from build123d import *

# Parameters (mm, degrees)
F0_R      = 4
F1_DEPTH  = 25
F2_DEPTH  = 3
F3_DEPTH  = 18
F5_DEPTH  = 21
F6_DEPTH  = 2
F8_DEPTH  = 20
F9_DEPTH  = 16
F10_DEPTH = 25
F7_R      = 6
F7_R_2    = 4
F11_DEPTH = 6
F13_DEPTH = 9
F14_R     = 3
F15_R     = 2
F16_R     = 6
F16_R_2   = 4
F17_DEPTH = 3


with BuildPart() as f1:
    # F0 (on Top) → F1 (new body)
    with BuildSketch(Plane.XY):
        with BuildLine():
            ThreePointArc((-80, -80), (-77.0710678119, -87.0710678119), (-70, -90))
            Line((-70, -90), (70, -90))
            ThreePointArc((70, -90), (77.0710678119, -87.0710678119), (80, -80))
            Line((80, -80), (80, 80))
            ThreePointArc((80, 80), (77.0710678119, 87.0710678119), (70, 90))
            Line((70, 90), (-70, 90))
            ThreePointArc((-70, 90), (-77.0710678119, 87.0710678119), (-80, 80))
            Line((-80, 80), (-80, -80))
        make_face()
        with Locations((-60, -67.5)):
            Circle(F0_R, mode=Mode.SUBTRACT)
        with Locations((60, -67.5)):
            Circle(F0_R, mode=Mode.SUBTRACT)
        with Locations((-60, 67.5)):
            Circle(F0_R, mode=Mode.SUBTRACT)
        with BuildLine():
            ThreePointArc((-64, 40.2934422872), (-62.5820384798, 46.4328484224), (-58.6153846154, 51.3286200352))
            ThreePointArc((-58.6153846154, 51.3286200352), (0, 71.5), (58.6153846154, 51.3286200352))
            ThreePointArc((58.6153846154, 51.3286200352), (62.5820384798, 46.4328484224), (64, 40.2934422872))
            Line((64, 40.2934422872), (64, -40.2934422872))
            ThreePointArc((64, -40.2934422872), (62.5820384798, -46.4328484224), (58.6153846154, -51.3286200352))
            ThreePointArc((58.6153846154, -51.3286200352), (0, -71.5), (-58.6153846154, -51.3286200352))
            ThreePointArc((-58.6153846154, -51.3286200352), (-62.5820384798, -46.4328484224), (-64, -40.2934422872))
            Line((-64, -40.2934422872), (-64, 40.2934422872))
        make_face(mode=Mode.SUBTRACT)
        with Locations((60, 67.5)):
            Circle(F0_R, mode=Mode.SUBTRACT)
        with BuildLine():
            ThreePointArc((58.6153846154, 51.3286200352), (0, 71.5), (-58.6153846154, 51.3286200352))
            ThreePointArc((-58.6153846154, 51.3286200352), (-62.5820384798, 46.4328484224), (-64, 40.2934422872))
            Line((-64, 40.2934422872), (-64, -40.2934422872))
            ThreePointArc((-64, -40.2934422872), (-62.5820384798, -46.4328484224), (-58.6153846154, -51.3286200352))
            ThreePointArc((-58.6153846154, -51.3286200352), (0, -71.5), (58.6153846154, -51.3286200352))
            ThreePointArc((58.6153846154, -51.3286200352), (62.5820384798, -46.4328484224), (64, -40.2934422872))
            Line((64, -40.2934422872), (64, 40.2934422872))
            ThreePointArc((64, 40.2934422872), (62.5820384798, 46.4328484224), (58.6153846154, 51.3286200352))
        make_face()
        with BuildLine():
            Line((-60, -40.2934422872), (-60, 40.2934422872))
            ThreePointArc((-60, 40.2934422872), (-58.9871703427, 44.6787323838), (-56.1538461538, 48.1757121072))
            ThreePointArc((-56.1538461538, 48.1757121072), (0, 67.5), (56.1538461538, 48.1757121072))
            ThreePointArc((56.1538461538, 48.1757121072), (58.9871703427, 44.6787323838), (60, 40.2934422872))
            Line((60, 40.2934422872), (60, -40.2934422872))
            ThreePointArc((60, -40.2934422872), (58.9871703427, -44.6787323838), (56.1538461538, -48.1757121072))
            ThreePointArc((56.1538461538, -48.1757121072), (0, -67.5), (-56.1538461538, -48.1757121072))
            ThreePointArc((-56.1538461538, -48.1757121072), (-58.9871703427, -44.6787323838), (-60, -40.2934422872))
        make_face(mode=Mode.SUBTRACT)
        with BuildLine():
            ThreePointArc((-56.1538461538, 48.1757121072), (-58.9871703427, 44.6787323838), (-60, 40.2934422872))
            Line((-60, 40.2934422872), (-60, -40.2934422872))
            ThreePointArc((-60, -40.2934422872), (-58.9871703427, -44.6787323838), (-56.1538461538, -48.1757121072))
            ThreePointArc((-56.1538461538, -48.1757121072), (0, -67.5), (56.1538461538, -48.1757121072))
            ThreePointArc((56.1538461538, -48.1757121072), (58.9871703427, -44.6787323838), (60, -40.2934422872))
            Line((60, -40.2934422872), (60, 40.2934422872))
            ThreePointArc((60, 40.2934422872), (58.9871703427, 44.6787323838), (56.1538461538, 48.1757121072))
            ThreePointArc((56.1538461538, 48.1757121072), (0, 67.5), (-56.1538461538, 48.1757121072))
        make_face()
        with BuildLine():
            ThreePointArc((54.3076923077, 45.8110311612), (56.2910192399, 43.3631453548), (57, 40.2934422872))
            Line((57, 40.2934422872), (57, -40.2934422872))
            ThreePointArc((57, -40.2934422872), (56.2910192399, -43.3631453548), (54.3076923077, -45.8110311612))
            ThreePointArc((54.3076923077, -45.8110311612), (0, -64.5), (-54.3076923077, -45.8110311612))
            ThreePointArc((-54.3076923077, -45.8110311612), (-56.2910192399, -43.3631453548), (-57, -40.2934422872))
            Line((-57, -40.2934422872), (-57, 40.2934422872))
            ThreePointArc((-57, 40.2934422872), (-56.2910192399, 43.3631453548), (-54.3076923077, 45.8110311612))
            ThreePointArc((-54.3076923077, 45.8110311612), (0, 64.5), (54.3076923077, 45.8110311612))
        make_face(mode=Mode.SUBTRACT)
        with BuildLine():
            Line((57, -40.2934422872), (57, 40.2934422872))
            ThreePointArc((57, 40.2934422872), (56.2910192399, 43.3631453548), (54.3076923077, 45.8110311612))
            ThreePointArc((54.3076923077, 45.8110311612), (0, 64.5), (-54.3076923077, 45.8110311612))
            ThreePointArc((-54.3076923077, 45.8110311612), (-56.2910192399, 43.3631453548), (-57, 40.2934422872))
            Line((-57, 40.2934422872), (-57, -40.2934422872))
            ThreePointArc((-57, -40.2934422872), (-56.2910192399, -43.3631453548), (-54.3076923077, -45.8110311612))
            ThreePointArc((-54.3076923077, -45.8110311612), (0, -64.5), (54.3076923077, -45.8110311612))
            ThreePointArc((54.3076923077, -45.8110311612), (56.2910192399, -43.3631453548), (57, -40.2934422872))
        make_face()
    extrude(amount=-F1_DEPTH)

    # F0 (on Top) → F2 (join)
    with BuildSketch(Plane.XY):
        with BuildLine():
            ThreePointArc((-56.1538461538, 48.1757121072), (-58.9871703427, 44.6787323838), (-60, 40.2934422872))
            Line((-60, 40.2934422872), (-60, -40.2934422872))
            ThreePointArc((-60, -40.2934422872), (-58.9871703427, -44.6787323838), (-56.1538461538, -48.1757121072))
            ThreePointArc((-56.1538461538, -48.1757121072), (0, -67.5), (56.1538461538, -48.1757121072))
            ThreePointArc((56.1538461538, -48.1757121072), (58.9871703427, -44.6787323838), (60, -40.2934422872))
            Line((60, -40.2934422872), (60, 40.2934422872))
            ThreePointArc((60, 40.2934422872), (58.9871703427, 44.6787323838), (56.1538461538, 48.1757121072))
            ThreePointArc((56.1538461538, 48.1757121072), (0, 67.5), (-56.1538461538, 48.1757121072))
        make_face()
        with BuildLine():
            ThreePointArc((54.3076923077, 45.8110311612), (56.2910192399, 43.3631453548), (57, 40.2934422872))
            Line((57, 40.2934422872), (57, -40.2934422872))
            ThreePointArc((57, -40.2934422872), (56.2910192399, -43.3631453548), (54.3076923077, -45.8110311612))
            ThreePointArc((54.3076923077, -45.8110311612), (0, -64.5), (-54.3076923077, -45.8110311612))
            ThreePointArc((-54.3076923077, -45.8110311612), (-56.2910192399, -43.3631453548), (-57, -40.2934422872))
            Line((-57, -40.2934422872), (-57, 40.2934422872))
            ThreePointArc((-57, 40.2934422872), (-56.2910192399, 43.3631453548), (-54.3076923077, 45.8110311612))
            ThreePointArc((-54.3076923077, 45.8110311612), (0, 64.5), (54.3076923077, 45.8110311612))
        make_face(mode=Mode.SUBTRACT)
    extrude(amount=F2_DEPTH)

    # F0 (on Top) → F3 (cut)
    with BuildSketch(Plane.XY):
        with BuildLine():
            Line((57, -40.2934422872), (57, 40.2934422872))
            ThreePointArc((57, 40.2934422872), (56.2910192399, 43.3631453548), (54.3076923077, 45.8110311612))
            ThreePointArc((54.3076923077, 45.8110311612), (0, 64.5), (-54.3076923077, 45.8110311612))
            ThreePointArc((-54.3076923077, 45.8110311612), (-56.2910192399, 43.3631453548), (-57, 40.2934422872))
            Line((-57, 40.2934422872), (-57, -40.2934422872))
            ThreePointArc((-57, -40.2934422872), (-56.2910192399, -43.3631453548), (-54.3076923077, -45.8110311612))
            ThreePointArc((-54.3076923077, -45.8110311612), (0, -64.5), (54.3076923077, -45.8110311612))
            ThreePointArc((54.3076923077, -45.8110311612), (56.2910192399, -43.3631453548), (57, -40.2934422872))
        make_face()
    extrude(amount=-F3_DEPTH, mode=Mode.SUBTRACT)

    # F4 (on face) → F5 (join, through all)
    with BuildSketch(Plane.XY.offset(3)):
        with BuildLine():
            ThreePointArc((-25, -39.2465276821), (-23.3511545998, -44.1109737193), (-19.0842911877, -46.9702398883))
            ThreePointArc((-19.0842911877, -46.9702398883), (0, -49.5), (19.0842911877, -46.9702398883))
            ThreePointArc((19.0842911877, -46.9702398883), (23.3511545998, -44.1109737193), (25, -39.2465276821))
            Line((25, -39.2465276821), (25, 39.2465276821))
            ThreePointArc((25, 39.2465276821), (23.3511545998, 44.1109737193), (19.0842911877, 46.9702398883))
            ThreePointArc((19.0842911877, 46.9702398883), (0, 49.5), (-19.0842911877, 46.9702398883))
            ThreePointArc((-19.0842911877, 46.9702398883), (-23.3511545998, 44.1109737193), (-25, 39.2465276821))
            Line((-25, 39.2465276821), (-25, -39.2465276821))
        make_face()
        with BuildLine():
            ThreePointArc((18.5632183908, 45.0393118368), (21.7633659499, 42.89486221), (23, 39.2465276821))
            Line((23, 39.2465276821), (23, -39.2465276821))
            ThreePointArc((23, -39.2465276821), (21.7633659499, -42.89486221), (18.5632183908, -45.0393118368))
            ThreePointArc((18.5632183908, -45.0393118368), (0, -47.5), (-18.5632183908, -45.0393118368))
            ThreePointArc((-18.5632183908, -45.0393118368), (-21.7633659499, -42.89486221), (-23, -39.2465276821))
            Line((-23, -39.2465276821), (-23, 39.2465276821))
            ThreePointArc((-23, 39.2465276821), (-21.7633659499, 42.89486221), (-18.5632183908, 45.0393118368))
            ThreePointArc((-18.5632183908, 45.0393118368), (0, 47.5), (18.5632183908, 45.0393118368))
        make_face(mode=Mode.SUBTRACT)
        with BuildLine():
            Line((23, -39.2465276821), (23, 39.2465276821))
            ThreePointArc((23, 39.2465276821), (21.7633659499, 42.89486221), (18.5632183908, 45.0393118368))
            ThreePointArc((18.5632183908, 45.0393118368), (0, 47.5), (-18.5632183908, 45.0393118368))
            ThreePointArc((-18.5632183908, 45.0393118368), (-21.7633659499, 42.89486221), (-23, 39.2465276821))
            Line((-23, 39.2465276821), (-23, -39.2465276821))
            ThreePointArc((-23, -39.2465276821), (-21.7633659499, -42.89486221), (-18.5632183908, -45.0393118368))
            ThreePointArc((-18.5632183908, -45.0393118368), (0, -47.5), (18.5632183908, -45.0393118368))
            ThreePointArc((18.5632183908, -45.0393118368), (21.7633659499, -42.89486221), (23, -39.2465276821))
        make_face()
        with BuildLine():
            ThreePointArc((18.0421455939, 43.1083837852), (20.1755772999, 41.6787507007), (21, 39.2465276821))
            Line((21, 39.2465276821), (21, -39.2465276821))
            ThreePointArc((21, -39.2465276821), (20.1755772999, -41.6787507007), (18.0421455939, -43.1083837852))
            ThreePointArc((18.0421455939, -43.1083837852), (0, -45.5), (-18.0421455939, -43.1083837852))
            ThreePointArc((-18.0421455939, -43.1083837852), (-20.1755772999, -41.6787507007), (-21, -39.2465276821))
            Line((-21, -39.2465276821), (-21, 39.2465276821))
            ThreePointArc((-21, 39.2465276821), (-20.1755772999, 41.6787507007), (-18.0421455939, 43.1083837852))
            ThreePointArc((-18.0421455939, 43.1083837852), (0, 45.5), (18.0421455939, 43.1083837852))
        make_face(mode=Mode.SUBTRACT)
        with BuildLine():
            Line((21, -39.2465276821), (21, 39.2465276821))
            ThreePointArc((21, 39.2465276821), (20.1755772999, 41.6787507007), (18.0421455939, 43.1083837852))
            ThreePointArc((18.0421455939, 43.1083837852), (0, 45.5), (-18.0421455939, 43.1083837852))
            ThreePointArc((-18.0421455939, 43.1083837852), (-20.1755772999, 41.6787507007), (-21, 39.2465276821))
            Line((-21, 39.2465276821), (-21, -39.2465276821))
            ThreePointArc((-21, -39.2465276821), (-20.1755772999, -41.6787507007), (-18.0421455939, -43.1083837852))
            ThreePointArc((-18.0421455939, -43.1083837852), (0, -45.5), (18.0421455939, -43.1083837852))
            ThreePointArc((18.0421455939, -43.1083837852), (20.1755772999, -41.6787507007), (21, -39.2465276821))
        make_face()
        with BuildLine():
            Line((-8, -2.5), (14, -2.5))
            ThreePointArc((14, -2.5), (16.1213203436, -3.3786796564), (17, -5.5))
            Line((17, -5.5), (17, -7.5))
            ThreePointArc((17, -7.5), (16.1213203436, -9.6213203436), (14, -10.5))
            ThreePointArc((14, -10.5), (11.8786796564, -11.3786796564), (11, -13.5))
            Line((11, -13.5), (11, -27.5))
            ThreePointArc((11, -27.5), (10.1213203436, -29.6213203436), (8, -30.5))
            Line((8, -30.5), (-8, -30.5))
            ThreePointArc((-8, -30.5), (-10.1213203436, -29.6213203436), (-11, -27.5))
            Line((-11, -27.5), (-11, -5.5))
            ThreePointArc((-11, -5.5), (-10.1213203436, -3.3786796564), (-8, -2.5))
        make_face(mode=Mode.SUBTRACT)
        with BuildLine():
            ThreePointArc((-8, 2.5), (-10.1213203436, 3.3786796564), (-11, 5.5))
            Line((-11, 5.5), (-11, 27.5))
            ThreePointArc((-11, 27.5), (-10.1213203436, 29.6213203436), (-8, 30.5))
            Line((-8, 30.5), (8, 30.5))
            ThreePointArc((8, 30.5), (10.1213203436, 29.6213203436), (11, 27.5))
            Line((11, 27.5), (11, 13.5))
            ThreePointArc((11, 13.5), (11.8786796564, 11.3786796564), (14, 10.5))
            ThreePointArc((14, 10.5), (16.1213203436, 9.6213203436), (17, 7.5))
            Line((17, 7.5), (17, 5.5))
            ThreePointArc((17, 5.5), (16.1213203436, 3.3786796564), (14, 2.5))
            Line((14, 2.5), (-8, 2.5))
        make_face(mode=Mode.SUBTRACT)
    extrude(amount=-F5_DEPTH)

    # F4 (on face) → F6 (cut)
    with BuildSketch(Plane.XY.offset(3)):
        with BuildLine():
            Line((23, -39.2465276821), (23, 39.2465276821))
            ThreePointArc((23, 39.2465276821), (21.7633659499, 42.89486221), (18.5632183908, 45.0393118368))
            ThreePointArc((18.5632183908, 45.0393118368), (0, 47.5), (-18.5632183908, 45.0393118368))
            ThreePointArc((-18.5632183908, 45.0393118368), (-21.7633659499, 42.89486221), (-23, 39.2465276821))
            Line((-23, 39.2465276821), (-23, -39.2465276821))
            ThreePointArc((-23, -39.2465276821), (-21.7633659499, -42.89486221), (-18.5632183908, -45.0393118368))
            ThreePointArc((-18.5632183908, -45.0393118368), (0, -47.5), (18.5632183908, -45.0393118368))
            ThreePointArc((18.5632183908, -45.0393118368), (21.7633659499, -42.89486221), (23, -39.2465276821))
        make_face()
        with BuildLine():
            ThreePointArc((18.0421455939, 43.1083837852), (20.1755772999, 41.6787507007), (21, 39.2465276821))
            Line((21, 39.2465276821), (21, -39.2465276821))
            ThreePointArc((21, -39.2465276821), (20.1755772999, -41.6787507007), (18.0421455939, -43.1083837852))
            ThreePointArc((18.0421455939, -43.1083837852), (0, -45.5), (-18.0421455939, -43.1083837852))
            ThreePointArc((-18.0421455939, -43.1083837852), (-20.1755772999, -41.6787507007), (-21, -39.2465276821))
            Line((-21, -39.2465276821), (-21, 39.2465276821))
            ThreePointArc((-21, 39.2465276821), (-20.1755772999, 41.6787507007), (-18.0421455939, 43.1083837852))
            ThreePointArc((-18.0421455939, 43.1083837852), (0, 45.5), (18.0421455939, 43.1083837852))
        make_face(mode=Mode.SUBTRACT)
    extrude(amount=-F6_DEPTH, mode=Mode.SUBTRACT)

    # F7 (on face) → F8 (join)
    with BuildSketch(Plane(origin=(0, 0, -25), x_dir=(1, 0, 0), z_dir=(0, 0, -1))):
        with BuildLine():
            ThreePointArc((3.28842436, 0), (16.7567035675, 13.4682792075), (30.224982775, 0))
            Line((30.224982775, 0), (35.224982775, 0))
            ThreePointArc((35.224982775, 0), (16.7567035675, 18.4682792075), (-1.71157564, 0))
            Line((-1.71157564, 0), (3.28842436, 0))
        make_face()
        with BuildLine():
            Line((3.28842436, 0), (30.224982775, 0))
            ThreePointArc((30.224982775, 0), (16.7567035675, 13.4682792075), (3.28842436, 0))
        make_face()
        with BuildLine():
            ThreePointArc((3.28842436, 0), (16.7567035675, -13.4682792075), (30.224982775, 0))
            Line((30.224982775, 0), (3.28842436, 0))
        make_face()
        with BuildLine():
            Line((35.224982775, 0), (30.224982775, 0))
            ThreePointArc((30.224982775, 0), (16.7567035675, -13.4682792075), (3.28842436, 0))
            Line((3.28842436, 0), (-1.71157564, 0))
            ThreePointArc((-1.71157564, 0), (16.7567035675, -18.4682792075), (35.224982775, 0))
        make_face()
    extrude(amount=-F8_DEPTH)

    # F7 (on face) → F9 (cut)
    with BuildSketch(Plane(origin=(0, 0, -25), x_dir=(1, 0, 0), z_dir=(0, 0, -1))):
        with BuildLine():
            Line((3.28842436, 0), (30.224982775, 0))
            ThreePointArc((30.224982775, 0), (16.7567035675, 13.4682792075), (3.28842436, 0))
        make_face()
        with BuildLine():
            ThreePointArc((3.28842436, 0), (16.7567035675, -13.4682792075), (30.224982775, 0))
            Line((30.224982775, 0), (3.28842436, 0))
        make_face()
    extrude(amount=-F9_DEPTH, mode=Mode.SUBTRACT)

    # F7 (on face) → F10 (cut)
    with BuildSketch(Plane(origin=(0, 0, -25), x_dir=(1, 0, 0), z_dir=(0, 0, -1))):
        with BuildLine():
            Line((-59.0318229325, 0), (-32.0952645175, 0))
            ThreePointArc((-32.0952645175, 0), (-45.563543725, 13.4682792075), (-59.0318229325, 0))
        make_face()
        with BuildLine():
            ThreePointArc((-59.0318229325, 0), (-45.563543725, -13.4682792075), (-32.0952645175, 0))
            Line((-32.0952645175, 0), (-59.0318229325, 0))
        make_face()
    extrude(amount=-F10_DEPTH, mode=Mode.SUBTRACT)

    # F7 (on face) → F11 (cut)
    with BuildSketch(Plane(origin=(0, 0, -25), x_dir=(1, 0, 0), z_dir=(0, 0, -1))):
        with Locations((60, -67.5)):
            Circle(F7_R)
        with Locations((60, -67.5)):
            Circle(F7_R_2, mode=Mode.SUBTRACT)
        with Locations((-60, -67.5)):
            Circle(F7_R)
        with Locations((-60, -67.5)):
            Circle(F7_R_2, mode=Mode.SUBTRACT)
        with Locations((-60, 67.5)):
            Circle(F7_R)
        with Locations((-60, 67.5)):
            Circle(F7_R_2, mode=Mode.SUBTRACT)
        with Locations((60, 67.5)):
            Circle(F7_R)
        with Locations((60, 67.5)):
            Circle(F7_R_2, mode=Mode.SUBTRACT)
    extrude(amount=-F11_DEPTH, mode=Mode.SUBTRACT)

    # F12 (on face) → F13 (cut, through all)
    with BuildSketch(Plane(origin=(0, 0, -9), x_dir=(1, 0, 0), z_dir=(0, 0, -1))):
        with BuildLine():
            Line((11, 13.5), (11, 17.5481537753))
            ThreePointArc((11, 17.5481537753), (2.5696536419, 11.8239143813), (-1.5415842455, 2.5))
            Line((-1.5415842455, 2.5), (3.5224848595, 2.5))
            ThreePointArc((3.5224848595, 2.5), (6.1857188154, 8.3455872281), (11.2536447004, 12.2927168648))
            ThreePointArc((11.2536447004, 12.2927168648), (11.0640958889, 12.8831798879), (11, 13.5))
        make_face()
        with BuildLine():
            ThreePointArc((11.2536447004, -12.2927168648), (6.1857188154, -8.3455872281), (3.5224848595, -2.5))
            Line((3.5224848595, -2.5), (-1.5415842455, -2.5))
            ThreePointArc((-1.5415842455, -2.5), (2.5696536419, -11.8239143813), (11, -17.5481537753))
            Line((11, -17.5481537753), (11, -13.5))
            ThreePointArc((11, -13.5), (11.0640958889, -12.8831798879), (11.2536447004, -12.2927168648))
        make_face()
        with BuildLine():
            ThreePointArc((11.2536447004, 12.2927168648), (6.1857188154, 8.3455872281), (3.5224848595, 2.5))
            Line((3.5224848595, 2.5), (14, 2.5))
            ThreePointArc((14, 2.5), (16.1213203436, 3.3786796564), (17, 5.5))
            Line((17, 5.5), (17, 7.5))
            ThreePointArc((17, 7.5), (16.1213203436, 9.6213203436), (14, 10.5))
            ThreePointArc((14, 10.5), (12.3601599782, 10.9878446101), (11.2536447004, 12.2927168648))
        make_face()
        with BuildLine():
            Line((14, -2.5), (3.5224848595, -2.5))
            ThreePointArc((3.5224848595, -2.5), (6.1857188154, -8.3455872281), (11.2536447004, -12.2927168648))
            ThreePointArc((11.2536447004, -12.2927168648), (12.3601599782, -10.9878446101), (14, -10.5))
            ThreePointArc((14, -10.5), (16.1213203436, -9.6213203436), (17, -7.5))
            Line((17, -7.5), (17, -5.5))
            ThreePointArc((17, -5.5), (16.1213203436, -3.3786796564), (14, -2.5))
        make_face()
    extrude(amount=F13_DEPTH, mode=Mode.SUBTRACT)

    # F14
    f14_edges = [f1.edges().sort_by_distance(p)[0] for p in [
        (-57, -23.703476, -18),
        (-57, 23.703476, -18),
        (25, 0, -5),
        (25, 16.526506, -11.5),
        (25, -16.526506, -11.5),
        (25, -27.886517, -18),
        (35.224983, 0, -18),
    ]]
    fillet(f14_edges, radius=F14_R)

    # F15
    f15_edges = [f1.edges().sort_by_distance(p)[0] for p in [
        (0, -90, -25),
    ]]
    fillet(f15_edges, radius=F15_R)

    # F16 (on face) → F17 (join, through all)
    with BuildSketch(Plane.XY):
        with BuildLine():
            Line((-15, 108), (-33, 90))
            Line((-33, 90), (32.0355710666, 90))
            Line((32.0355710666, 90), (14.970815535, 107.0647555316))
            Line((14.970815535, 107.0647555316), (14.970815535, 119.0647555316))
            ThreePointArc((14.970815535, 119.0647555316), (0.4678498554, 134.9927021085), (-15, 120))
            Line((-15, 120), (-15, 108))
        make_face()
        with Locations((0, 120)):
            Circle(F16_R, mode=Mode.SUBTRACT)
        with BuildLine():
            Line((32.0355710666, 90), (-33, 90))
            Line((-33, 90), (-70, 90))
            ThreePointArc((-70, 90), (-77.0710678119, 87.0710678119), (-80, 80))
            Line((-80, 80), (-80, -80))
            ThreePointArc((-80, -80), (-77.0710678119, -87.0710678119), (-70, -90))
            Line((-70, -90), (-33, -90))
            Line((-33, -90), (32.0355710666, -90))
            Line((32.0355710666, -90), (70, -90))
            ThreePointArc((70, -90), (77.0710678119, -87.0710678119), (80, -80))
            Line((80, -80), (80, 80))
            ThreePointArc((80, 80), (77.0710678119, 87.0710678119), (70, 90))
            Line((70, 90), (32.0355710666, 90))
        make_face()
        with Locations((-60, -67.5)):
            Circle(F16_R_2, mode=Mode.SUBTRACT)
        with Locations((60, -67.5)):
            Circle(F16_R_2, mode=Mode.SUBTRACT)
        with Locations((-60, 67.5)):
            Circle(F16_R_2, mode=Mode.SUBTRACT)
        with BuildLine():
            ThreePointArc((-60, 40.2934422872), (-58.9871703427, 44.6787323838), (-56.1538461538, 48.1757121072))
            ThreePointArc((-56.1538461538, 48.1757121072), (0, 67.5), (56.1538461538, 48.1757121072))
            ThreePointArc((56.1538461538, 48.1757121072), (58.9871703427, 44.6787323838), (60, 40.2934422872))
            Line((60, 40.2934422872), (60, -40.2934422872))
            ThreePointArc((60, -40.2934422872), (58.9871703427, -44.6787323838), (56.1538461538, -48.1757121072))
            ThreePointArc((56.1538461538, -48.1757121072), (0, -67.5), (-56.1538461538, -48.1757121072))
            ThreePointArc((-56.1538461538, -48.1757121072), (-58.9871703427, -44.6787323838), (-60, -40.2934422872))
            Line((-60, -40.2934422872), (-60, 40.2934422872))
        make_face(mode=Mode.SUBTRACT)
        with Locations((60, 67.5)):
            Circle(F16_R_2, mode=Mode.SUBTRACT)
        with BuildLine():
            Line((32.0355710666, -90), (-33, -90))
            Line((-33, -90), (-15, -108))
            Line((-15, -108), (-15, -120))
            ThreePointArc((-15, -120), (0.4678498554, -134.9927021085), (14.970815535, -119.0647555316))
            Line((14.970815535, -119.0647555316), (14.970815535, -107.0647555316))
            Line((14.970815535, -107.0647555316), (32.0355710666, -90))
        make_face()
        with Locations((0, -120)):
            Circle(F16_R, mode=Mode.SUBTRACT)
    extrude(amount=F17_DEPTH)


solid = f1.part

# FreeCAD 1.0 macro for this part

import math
import FreeCAD as App
import Part
import Sketcher

V = App.Vector


def edges_at(feature, points):
    """Names of the edges that pass closest to the given points."""
    edges = feature.Shape.Edges
    near = lambda p: min(range(len(edges)), key=lambda i: edges[i].distToShape(Part.Vertex(*p))[0])
    return sorted({f"Edge{near(p) + 1}" for p in points})

doc = App.newDocument("Part")
body = doc.addObject("PartDesign::Body", "Body")

sketch1 = body.newObject("Sketcher::SketchObject", "Sketch")
sketch1.AttachmentSupport = (doc.getObject("XY_Plane"), [""])
sketch1.MapMode = "FlatFace"
sketch1.addGeometry([
    Part.ArcOfCircle(Part.Circle(V(-70, -80, 0), V(0, 0, 1), 10), math.radians(180), math.radians(270)),
    Part.LineSegment(V(-70, -90, 0), V(70, -90, 0)),
    Part.ArcOfCircle(Part.Circle(V(70, -80, 0), V(0, 0, 1), 10), math.radians(-90), math.radians(0)),
    Part.LineSegment(V(80, -80, 0), V(80, 80, 0)),
    Part.ArcOfCircle(Part.Circle(V(70, 80, 0), V(0, 0, 1), 10), math.radians(0), math.radians(90)),
    Part.LineSegment(V(70, 90, 0), V(-70, 90, 0)),
    Part.ArcOfCircle(Part.Circle(V(-70, 80, 0), V(0, 0, 1), 10), math.radians(90), math.radians(180)),
    Part.LineSegment(V(-80, 80, 0), V(-80, -80, 0)),
    Part.Circle(V(-60, -67.5, 0), V(0, 0, 1), 4),
    Part.Circle(V(60, -67.5, 0), V(0, 0, 1), 4),
    Part.Circle(V(-60, 67.5, 0), V(0, 0, 1), 4),
    Part.Circle(V(60, 67.5, 0), V(0, 0, 1), 4),
], False)
sketch1.addConstraint([
    Sketcher.Constraint("Tangent", 0, 2, 1, 1),
    Sketcher.Constraint("Tangent", 1, 2, 2, 1),
    Sketcher.Constraint("Tangent", 2, 2, 3, 1),
    Sketcher.Constraint("Tangent", 3, 2, 4, 1),
    Sketcher.Constraint("Tangent", 4, 2, 5, 1),
    Sketcher.Constraint("Tangent", 5, 2, 6, 1),
    Sketcher.Constraint("Tangent", 6, 2, 7, 1),
    Sketcher.Constraint("Tangent", 7, 2, 0, 1),
    Sketcher.Constraint("Horizontal", 1),
    Sketcher.Constraint("Vertical", 3),
    Sketcher.Constraint("Horizontal", 5),
    Sketcher.Constraint("Vertical", 7),
    Sketcher.Constraint("Equal", 0, 2),
    Sketcher.Constraint("Equal", 2, 4),
    Sketcher.Constraint("Equal", 4, 6),
    Sketcher.Constraint("Equal", 8, 9),
    Sketcher.Constraint("Equal", 9, 10),
    Sketcher.Constraint("Equal", 10, 11),
    Sketcher.Constraint("Symmetric", 0, 3, 4, 3, -1, 1),
    Sketcher.Constraint("Symmetric", 9, 3, 10, 3, -1, 1),
    Sketcher.Constraint("Symmetric", 8, 3, 11, 3, -1, 1),
    Sketcher.Constraint("Symmetric", 8, 3, 9, 3, -2),
    Sketcher.Constraint("Diameter", 8, 8.0),
    Sketcher.Constraint("Radius", 0, 10.0),
    Sketcher.Constraint("DistanceX", 1, 1, 1, 2, 140.0),
    Sketcher.Constraint("DistanceY", 3, 1, 3, 2, 160.0),
    Sketcher.Constraint("DistanceX", 8, 3, -1, 1, 60.0),
    Sketcher.Constraint("DistanceY", 8, 3, 10, 3, 135.0),
])
pad1 = body.newObject("PartDesign::Pad", "Pad")
pad1.Profile = sketch1
pad1.Length = 25
pad1.Reversed = True

sketch2 = body.newObject("Sketcher::SketchObject", "Sketch001")
sketch2.AttachmentSupport = (doc.getObject("XY_Plane"), [""])
sketch2.MapMode = "FlatFace"
sketch2.addGeometry([
    Part.ArcOfCircle(Part.Circle(V(-50, 40, 0), V(0, 0, 1), 10), math.radians(128), math.radians(180)),
    Part.LineSegment(V(-60, 40, 0), V(-60, -40, 0)),
    Part.ArcOfCircle(Part.Circle(V(-50, -40, 0), V(0, 0, 1), 10), math.radians(180), math.radians(232)),
    Part.ArcOfCircle(Part.Circle(V(0, 24, 0), V(0, 0, 1), 91), math.radians(-128), math.radians(-52)),
    Part.ArcOfCircle(Part.Circle(V(50, -40, 0), V(0, 0, 1), 10), math.radians(-52), math.radians(0)),
    Part.LineSegment(V(60, -40, 0), V(60, 40, 0)),
    Part.ArcOfCircle(Part.Circle(V(50, 40, 0), V(0, 0, 1), 10), math.radians(0), math.radians(52)),
    Part.ArcOfCircle(Part.Circle(V(0, -24, 0), V(0, 0, 1), 91), math.radians(52), math.radians(128)),
    Part.ArcOfCircle(Part.Circle(V(0, -24, 0), V(0, 0, 1), 88), math.radians(52), math.radians(128)),
    Part.ArcOfCircle(Part.Circle(V(50, 40, 0), V(0, 0, 1), 7), math.radians(0), math.radians(52)),
    Part.LineSegment(V(57, 40, 0), V(57, -40, 0)),
    Part.ArcOfCircle(Part.Circle(V(50, -40, 0), V(0, 0, 1), 7), math.radians(-52), math.radians(0)),
    Part.ArcOfCircle(Part.Circle(V(0, 24, 0), V(0, 0, 1), 88), math.radians(-128), math.radians(-52)),
    Part.ArcOfCircle(Part.Circle(V(-50, -40, 0), V(0, 0, 1), 7), math.radians(180), math.radians(232)),
    Part.LineSegment(V(-57, -40, 0), V(-57, 40, 0)),
    Part.ArcOfCircle(Part.Circle(V(-50, 40, 0), V(0, 0, 1), 7), math.radians(128), math.radians(180)),
], False)
sketch2.addConstraint([
    Sketcher.Constraint("Tangent", 0, 2, 1, 1),
    Sketcher.Constraint("Tangent", 1, 2, 2, 1),
    Sketcher.Constraint("Tangent", 2, 2, 3, 1),
    Sketcher.Constraint("Tangent", 3, 2, 4, 1),
    Sketcher.Constraint("Tangent", 4, 2, 5, 1),
    Sketcher.Constraint("Tangent", 5, 2, 6, 1),
    Sketcher.Constraint("Tangent", 6, 2, 7, 1),
    Sketcher.Constraint("Tangent", 7, 2, 0, 1),
    Sketcher.Constraint("Tangent", 8, 1, 9, 2),
    Sketcher.Constraint("Tangent", 9, 1, 10, 1),
    Sketcher.Constraint("Tangent", 10, 2, 11, 2),
    Sketcher.Constraint("Tangent", 11, 1, 12, 2),
    Sketcher.Constraint("Tangent", 12, 1, 13, 2),
    Sketcher.Constraint("Tangent", 13, 1, 14, 1),
    Sketcher.Constraint("Tangent", 14, 2, 15, 2),
    Sketcher.Constraint("Tangent", 15, 1, 8, 2),
    Sketcher.Constraint("Vertical", 1),
    Sketcher.Constraint("Vertical", 5),
    Sketcher.Constraint("Vertical", 10),
    Sketcher.Constraint("Vertical", 14),
    Sketcher.Constraint("Coincident", 8, 3, 7, 3),
    Sketcher.Constraint("Coincident", 9, 3, 6, 3),
    Sketcher.Constraint("Coincident", 11, 3, 4, 3),
    Sketcher.Constraint("Coincident", 12, 3, 3, 3),
    Sketcher.Constraint("Coincident", 13, 3, 2, 3),
    Sketcher.Constraint("Equal", 0, 2),
    Sketcher.Constraint("Equal", 2, 4),
    Sketcher.Constraint("Equal", 4, 6),
    Sketcher.Constraint("Equal", 3, 7),
    Sketcher.Constraint("Equal", 13, 15),
    Sketcher.Constraint("Symmetric", 0, 3, 4, 3, -1, 1),
    Sketcher.Constraint("Symmetric", 3, 3, 7, 3, -1),
    Sketcher.Constraint("Radius", 0, 10.0),
    Sketcher.Constraint("Radius", 9, 7.0),
    Sketcher.Constraint("Radius", 3, 91.25),
    Sketcher.Constraint("DistanceX", 0, 3, -1, 1, 50.0),
    Sketcher.Constraint("DistanceY", 7, 3, 3, 3, 47.5),
])
pad2 = body.newObject("PartDesign::Pad", "Pad001")
pad2.Profile = sketch2
pad2.Length = 3

sketch3 = body.newObject("Sketcher::SketchObject", "Sketch002")
sketch3.AttachmentSupport = (doc.getObject("XY_Plane"), [""])
sketch3.MapMode = "FlatFace"
sketch3.addGeometry([
    Part.LineSegment(V(57, -40, 0), V(57, 40, 0)),
    Part.ArcOfCircle(Part.Circle(V(50, 40, 0), V(0, 0, 1), 7), math.radians(0), math.radians(52)),
    Part.ArcOfCircle(Part.Circle(V(0, -24, 0), V(0, 0, 1), 88), math.radians(52), math.radians(128)),
    Part.ArcOfCircle(Part.Circle(V(-50, 40, 0), V(0, 0, 1), 7), math.radians(128), math.radians(180)),
    Part.LineSegment(V(-57, 40, 0), V(-57, -40, 0)),
    Part.ArcOfCircle(Part.Circle(V(-50, -40, 0), V(0, 0, 1), 7), math.radians(180), math.radians(232)),
    Part.ArcOfCircle(Part.Circle(V(0, 24, 0), V(0, 0, 1), 88), math.radians(-128), math.radians(-52)),
    Part.ArcOfCircle(Part.Circle(V(50, -40, 0), V(0, 0, 1), 7), math.radians(-52), math.radians(0)),
], False)
sketch3.addConstraint([
    Sketcher.Constraint("Tangent", 0, 2, 1, 1),
    Sketcher.Constraint("Tangent", 1, 2, 2, 1),
    Sketcher.Constraint("Tangent", 2, 2, 3, 1),
    Sketcher.Constraint("Tangent", 3, 2, 4, 1),
    Sketcher.Constraint("Tangent", 4, 2, 5, 1),
    Sketcher.Constraint("Tangent", 5, 2, 6, 1),
    Sketcher.Constraint("Tangent", 6, 2, 7, 1),
    Sketcher.Constraint("Tangent", 7, 2, 0, 1),
    Sketcher.Constraint("Vertical", 0),
    Sketcher.Constraint("Vertical", 4),
    Sketcher.Constraint("Equal", 1, 3),
    Sketcher.Constraint("Equal", 3, 5),
    Sketcher.Constraint("Equal", 2, 6),
    Sketcher.Constraint("Equal", 5, 7),
    Sketcher.Constraint("Symmetric", 1, 3, 5, 3, -1, 1),
    Sketcher.Constraint("Symmetric", 2, 3, 6, 3, -1),
    Sketcher.Constraint("Radius", 1, 7.0),
    Sketcher.Constraint("Radius", 2, 88.25),
    Sketcher.Constraint("DistanceX", -1, 1, 1, 3, 50.0),
    Sketcher.Constraint("DistanceY", 2, 3, 6, 3, 47.5),
])
pocket1 = body.newObject("PartDesign::Pocket", "Pocket")
pocket1.Profile = sketch3
pocket1.Length = 18

sketch4 = body.newObject("Sketcher::SketchObject", "Sketch003")
sketch4.AttachmentSupport = (doc.getObject("XY_Plane"), [""])
sketch4.MapMode = "FlatFace"
sketch4.AttachmentOffset = App.Placement(V(0, 0, 3), App.Rotation())
sketch4.addGeometry([
    Part.ArcOfCircle(Part.Circle(V(-17, -39.2, 0), V(0, 0, 1), 8), math.radians(180), math.radians(255)),
    Part.ArcOfCircle(Part.Circle(V(0, 23.7, 0), V(0, 0, 1), 73.2), math.radians(-105), math.radians(-75)),
    Part.ArcOfCircle(Part.Circle(V(17, -39.2, 0), V(0, 0, 1), 8), math.radians(-75), math.radians(0)),
    Part.LineSegment(V(25, -39.2, 0), V(25, 39.2, 0)),
    Part.ArcOfCircle(Part.Circle(V(17, 39.2, 0), V(0, 0, 1), 8), math.radians(0), math.radians(75)),
    Part.ArcOfCircle(Part.Circle(V(0, -23.7, 0), V(0, 0, 1), 73.2), math.radians(75), math.radians(105)),
    Part.ArcOfCircle(Part.Circle(V(-17, 39.2, 0), V(0, 0, 1), 8), math.radians(105), math.radians(180)),
    Part.LineSegment(V(-25, 39.2, 0), V(-25, -39.2, 0)),
    Part.ArcOfCircle(Part.Circle(V(-8, -5.5, 0), V(0, 0, 1), 3), math.radians(90), math.radians(180)),
    Part.LineSegment(V(-8, -2.5, 0), V(14, -2.5, 0)),
    Part.ArcOfCircle(Part.Circle(V(14, -5.5, 0), V(0, 0, 1), 3), math.radians(0), math.radians(90)),
    Part.LineSegment(V(17, -5.5, 0), V(17, -7.5, 0)),
    Part.ArcOfCircle(Part.Circle(V(14, -7.5, 0), V(0, 0, 1), 3), math.radians(-90), math.radians(0)),
    Part.ArcOfCircle(Part.Circle(V(14, -13.5, 0), V(0, 0, 1), 3), math.radians(90), math.radians(180)),
    Part.LineSegment(V(11, -13.5, 0), V(11, -27.5, 0)),
    Part.ArcOfCircle(Part.Circle(V(8, -27.5, 0), V(0, 0, 1), 3), math.radians(-90), math.radians(0)),
    Part.LineSegment(V(8, -30.5, 0), V(-8, -30.5, 0)),
    Part.ArcOfCircle(Part.Circle(V(-8, -27.5, 0), V(0, 0, 1), 3), math.radians(180), math.radians(270)),
    Part.LineSegment(V(-11, -27.5, 0), V(-11, -5.5, 0)),
    Part.LineSegment(V(14, 2.5, 0), V(-8, 2.5, 0)),
    Part.ArcOfCircle(Part.Circle(V(-8, 5.5, 0), V(0, 0, 1), 3), math.radians(180), math.radians(270)),
    Part.LineSegment(V(-11, 5.5, 0), V(-11, 27.5, 0)),
    Part.ArcOfCircle(Part.Circle(V(-8, 27.5, 0), V(0, 0, 1), 3), math.radians(90), math.radians(180)),
    Part.LineSegment(V(-8, 30.5, 0), V(8, 30.5, 0)),
    Part.ArcOfCircle(Part.Circle(V(8, 27.5, 0), V(0, 0, 1), 3), math.radians(0), math.radians(90)),
    Part.LineSegment(V(11, 27.5, 0), V(11, 13.5, 0)),
    Part.ArcOfCircle(Part.Circle(V(14, 13.5, 0), V(0, 0, 1), 3), math.radians(180), math.radians(270)),
    Part.ArcOfCircle(Part.Circle(V(14, 7.5, 0), V(0, 0, 1), 3), math.radians(0), math.radians(90)),
    Part.LineSegment(V(17, 7.5, 0), V(17, 5.5, 0)),
    Part.ArcOfCircle(Part.Circle(V(14, 5.5, 0), V(0, 0, 1), 3), math.radians(-90), math.radians(0)),
], False)
sketch4.addConstraint([
    Sketcher.Constraint("Tangent", 0, 2, 1, 1),
    Sketcher.Constraint("Tangent", 1, 2, 2, 1),
    Sketcher.Constraint("Tangent", 2, 2, 3, 1),
    Sketcher.Constraint("Tangent", 3, 2, 4, 1),
    Sketcher.Constraint("Tangent", 4, 2, 5, 1),
    Sketcher.Constraint("Tangent", 5, 2, 6, 1),
    Sketcher.Constraint("Tangent", 6, 2, 7, 1),
    Sketcher.Constraint("Tangent", 7, 2, 0, 1),
    Sketcher.Constraint("Tangent", 8, 1, 9, 1),
    Sketcher.Constraint("Tangent", 9, 2, 10, 2),
    Sketcher.Constraint("Tangent", 10, 1, 11, 1),
    Sketcher.Constraint("Tangent", 11, 2, 12, 2),
    Sketcher.Constraint("Tangent", 12, 1, 13, 1),
    Sketcher.Constraint("Tangent", 13, 2, 14, 1),
    Sketcher.Constraint("Tangent", 14, 2, 15, 2),
    Sketcher.Constraint("Tangent", 15, 1, 16, 1),
    Sketcher.Constraint("Tangent", 16, 2, 17, 2),
    Sketcher.Constraint("Tangent", 17, 1, 18, 1),
    Sketcher.Constraint("Tangent", 18, 2, 8, 2),
    Sketcher.Constraint("Tangent", 19, 2, 20, 2),
    Sketcher.Constraint("Tangent", 20, 1, 21, 1),
    Sketcher.Constraint("Tangent", 21, 2, 22, 2),
    Sketcher.Constraint("Tangent", 22, 1, 23, 1),
    Sketcher.Constraint("Tangent", 23, 2, 24, 2),
    Sketcher.Constraint("Tangent", 24, 1, 25, 1),
    Sketcher.Constraint("Tangent", 25, 2, 26, 1),
    Sketcher.Constraint("Tangent", 26, 2, 27, 2),
    Sketcher.Constraint("Tangent", 27, 1, 28, 1),
    Sketcher.Constraint("Tangent", 28, 2, 29, 2),
    Sketcher.Constraint("Tangent", 29, 1, 19, 1),
    Sketcher.Constraint("Vertical", 3),
    Sketcher.Constraint("Vertical", 7),
    Sketcher.Constraint("Horizontal", 9),
    Sketcher.Constraint("Vertical", 11),
    Sketcher.Constraint("Vertical", 14),
    Sketcher.Constraint("Horizontal", 16),
    Sketcher.Constraint("Vertical", 18),
    Sketcher.Constraint("Horizontal", 19),
    Sketcher.Constraint("Vertical", 21),
    Sketcher.Constraint("Horizontal", 23),
    Sketcher.Constraint("Vertical", 25),
    Sketcher.Constraint("Vertical", 28),
    Sketcher.Constraint("Equal", 0, 2),
    Sketcher.Constraint("Equal", 2, 4),
    Sketcher.Constraint("Equal", 1, 5),
    Sketcher.Constraint("Equal", 4, 6),
    Sketcher.Constraint("Equal", 8, 10),
    Sketcher.Constraint("Equal", 10, 12),
    Sketcher.Constraint("Equal", 12, 13),
    Sketcher.Constraint("Equal", 13, 15),
    Sketcher.Constraint("Equal", 15, 17),
    Sketcher.Constraint("Equal", 17, 20),
    Sketcher.Constraint("Equal", 20, 22),
    Sketcher.Constraint("Equal", 22, 24),
    Sketcher.Constraint("Equal", 24, 26),
    Sketcher.Constraint("Equal", 26, 27),
    Sketcher.Constraint("Equal", 27, 29),
    Sketcher.Constraint("Symmetric", 0, 3, 4, 3, -1, 1),
    Sketcher.Constraint("Symmetric", 15, 3, 22, 3, -1, 1),
    Sketcher.Constraint("Symmetric", 1, 3, 5, 3, -1),
    Sketcher.Constraint("Symmetric", 8, 3, 20, 3, -1),
    Sketcher.Constraint("Symmetric", 13, 3, 26, 3, -1),
    Sketcher.Constraint("Vertical", 12, 3, 13, 3),
    Sketcher.Constraint("Vertical", 26, 3, 27, 3),
    Sketcher.Constraint("Vertical", 4, 3, 10, 1),
    Sketcher.Constraint("Equal", 19, 18),
    Sketcher.Constraint("Radius", 0, 8.0),
    Sketcher.Constraint("Radius", 8, 3.0),
    Sketcher.Constraint("DistanceX", 9, 1, 9, 2, 22.0),
    Sketcher.Constraint("DistanceY", 11, 2, 11, 1, 2.0),
    Sketcher.Constraint("Radius", 1, 73.25),
    Sketcher.Constraint("DistanceY", 8, 3, 20, 3, 11.0),
    Sketcher.Constraint("DistanceY", 5, 3, 1, 3, 47.5),
])
pad3 = body.newObject("PartDesign::Pad", "Pad002")
pad3.Profile = sketch4
pad3.Type = "UpToLast"
pad3.Reversed = True

sketch5 = body.newObject("Sketcher::SketchObject", "Sketch004")
sketch5.AttachmentSupport = (doc.getObject("XY_Plane"), [""])
sketch5.MapMode = "FlatFace"
sketch5.AttachmentOffset = App.Placement(V(0, 0, 3), App.Rotation())
sketch5.addGeometry([
    Part.LineSegment(V(23, -39.2, 0), V(23, 39.2, 0)),
    Part.ArcOfCircle(Part.Circle(V(17, 39.2, 0), V(0, 0, 1), 6), math.radians(0), math.radians(75)),
    Part.ArcOfCircle(Part.Circle(V(0, -23.8, 0), V(0, 0, 1), 71.3), math.radians(75), math.radians(105)),
    Part.ArcOfCircle(Part.Circle(V(-17, 39.2, 0), V(0, 0, 1), 6), math.radians(105), math.radians(180)),
    Part.LineSegment(V(-23, 39.2, 0), V(-23, -39.2, 0)),
    Part.ArcOfCircle(Part.Circle(V(-17, -39.2, 0), V(0, 0, 1), 6), math.radians(180), math.radians(255)),
    Part.ArcOfCircle(Part.Circle(V(0, 23.8, 0), V(0, 0, 1), 71.3), math.radians(-105), math.radians(-75)),
    Part.ArcOfCircle(Part.Circle(V(17, -39.2, 0), V(0, 0, 1), 6), math.radians(-75), math.radians(0)),
    Part.ArcOfCircle(Part.Circle(V(0, -23.8, 0), V(0, 0, 1), 69.2), math.radians(75), math.radians(105)),
    Part.ArcOfCircle(Part.Circle(V(17, 39.2, 0), V(0, 0, 1), 4), math.radians(0), math.radians(75)),
    Part.LineSegment(V(21, 39.2, 0), V(21, -39.2, 0)),
    Part.ArcOfCircle(Part.Circle(V(17, -39.2, 0), V(0, 0, 1), 4), math.radians(-75), math.radians(0)),
    Part.ArcOfCircle(Part.Circle(V(0, 23.8, 0), V(0, 0, 1), 69.2), math.radians(-105), math.radians(-75)),
    Part.ArcOfCircle(Part.Circle(V(-17, -39.2, 0), V(0, 0, 1), 4), math.radians(180), math.radians(255)),
    Part.LineSegment(V(-21, -39.2, 0), V(-21, 39.2, 0)),
    Part.ArcOfCircle(Part.Circle(V(-17, 39.2, 0), V(0, 0, 1), 4), math.radians(105), math.radians(180)),
], False)
sketch5.addConstraint([
    Sketcher.Constraint("Tangent", 0, 2, 1, 1),
    Sketcher.Constraint("Tangent", 1, 2, 2, 1),
    Sketcher.Constraint("Tangent", 2, 2, 3, 1),
    Sketcher.Constraint("Tangent", 3, 2, 4, 1),
    Sketcher.Constraint("Tangent", 4, 2, 5, 1),
    Sketcher.Constraint("Tangent", 5, 2, 6, 1),
    Sketcher.Constraint("Tangent", 6, 2, 7, 1),
    Sketcher.Constraint("Tangent", 7, 2, 0, 1),
    Sketcher.Constraint("Tangent", 8, 1, 9, 2),
    Sketcher.Constraint("Tangent", 9, 1, 10, 1),
    Sketcher.Constraint("Tangent", 10, 2, 11, 2),
    Sketcher.Constraint("Tangent", 11, 1, 12, 2),
    Sketcher.Constraint("Tangent", 12, 1, 13, 2),
    Sketcher.Constraint("Tangent", 13, 1, 14, 1),
    Sketcher.Constraint("Tangent", 14, 2, 15, 2),
    Sketcher.Constraint("Tangent", 15, 1, 8, 2),
    Sketcher.Constraint("Vertical", 0),
    Sketcher.Constraint("Vertical", 4),
    Sketcher.Constraint("Vertical", 10),
    Sketcher.Constraint("Vertical", 14),
    Sketcher.Constraint("Coincident", 8, 3, 2, 3),
    Sketcher.Constraint("Coincident", 9, 3, 1, 3),
    Sketcher.Constraint("Coincident", 11, 3, 7, 3),
    Sketcher.Constraint("Coincident", 12, 3, 6, 3),
    Sketcher.Constraint("Coincident", 13, 3, 5, 3),
    Sketcher.Constraint("Equal", 1, 3),
    Sketcher.Constraint("Equal", 3, 5),
    Sketcher.Constraint("Equal", 2, 6),
    Sketcher.Constraint("Equal", 5, 7),
    Sketcher.Constraint("Equal", 13, 15),
    Sketcher.Constraint("Symmetric", 1, 3, 5, 3, -1, 1),
    Sketcher.Constraint("Symmetric", 2, 3, 6, 3, -1),
    Sketcher.Constraint("Radius", 1, 6.0),
    Sketcher.Constraint("Radius", 9, 4.0),
    Sketcher.Constraint("Radius", 2, 71.25),
    Sketcher.Constraint("DistanceX", -1, 1, 1, 3, 17.0),
    Sketcher.Constraint("DistanceY", 2, 3, 6, 3, 47.5),
])
pocket2 = body.newObject("PartDesign::Pocket", "Pocket001")
pocket2.Profile = sketch5
pocket2.Length = 2

sketch6 = body.newObject("Sketcher::SketchObject", "Sketch005")
sketch6.AttachmentSupport = (doc.getObject("XY_Plane"), [""])
sketch6.MapMode = "FlatFace"
sketch6.AttachmentOffset = App.Placement(V(0, 0, -25), App.Rotation())
sketch6.addGeometry(Part.Circle(V(17, 0, 0), V(0, 0, 1), 18), False)
sketch6.addConstraint([
    Sketcher.Constraint("PointOnObject", 0, 3, -1),
    Sketcher.Constraint("Diameter", 0, 36.936558),
    Sketcher.Constraint("DistanceX", -1, 1, 0, 3, 16.756704),
])
pad4 = body.newObject("PartDesign::Pad", "Pad003")
pad4.Profile = sketch6
pad4.Length = 20

sketch7 = body.newObject("Sketcher::SketchObject", "Sketch006")
sketch7.AttachmentSupport = (doc.getObject("XY_Plane"), [""])
sketch7.MapMode = "FlatFace"
sketch7.AttachmentOffset = App.Placement(V(0, 0, -25), App.Rotation())
sketch7.addGeometry(Part.Circle(V(17, 0, 0), V(0, 0, 1), 13), False)
sketch7.addConstraint([
    Sketcher.Constraint("PointOnObject", 0, 3, -1),
    Sketcher.Constraint("Diameter", 0, 26.936558),
    Sketcher.Constraint("DistanceX", -1, 1, 0, 3, 16.756704),
])
pocket3 = body.newObject("PartDesign::Pocket", "Pocket002")
pocket3.Profile = sketch7
pocket3.Length = 16
pocket3.Reversed = True

sketch8 = body.newObject("Sketcher::SketchObject", "Sketch007")
sketch8.AttachmentSupport = (doc.getObject("XY_Plane"), [""])
sketch8.MapMode = "FlatFace"
sketch8.AttachmentOffset = App.Placement(V(0, 0, -25), App.Rotation())
sketch8.addGeometry(Part.Circle(V(-46, 0, 0), V(0, 0, 1), 13), False)
sketch8.addConstraint([
    Sketcher.Constraint("PointOnObject", 0, 3, -1),
    Sketcher.Constraint("Diameter", 0, 26.936558),
    Sketcher.Constraint("DistanceX", 0, 3, -1, 1, 45.563544),
])
pocket4 = body.newObject("PartDesign::Pocket", "Pocket003")
pocket4.Profile = sketch8
pocket4.Length = 25
pocket4.Reversed = True

sketch9 = body.newObject("Sketcher::SketchObject", "Sketch008")
sketch9.AttachmentSupport = (doc.getObject("XY_Plane"), [""])
sketch9.MapMode = "FlatFace"
sketch9.AttachmentOffset = App.Placement(V(0, 0, -25), App.Rotation())
sketch9.addGeometry([
    Part.Circle(V(60, 67.5, 0), V(0, 0, 1), 6),
    Part.Circle(V(60, 67.5, 0), V(0, 0, 1), 4),
    Part.Circle(V(-60, 67.5, 0), V(0, 0, 1), 6),
    Part.Circle(V(-60, 67.5, 0), V(0, 0, 1), 4),
    Part.Circle(V(-60, -67.5, 0), V(0, 0, 1), 6),
    Part.Circle(V(-60, -67.5, 0), V(0, 0, 1), 4),
    Part.Circle(V(60, -67.5, 0), V(0, 0, 1), 6),
    Part.Circle(V(60, -67.5, 0), V(0, 0, 1), 4),
], False)
sketch9.addConstraint([
    Sketcher.Constraint("Coincident", 1, 3, 0, 3),
    Sketcher.Constraint("Coincident", 3, 3, 2, 3),
    Sketcher.Constraint("Coincident", 5, 3, 4, 3),
    Sketcher.Constraint("Coincident", 7, 3, 6, 3),
    Sketcher.Constraint("Equal", 0, 2),
    Sketcher.Constraint("Equal", 1, 3),
    Sketcher.Constraint("Equal", 2, 4),
    Sketcher.Constraint("Equal", 3, 5),
    Sketcher.Constraint("Equal", 4, 6),
    Sketcher.Constraint("Equal", 5, 7),
    Sketcher.Constraint("Symmetric", 0, 3, 4, 3, -1, 1),
    Sketcher.Constraint("Symmetric", 2, 3, 6, 3, -1, 1),
    Sketcher.Constraint("Symmetric", 0, 3, 2, 3, -2),
    Sketcher.Constraint("Diameter", 0, 12.0),
    Sketcher.Constraint("Diameter", 1, 8.0),
    Sketcher.Constraint("DistanceX", -1, 1, 0, 3, 60.0),
    Sketcher.Constraint("DistanceY", 4, 3, 2, 3, 135.0),
])
pocket5 = body.newObject("PartDesign::Pocket", "Pocket004")
pocket5.Profile = sketch9
pocket5.Length = 6
pocket5.Reversed = True

sketch10 = body.newObject("Sketcher::SketchObject", "Sketch009")
sketch10.AttachmentSupport = (doc.getObject("XY_Plane"), [""])
sketch10.MapMode = "FlatFace"
sketch10.AttachmentOffset = App.Placement(V(0, 0, -9), App.Rotation())
sketch10.addGeometry([
    Part.LineSegment(V(11, -13.5, 0), V(11, -17.5, 0)),
    Part.ArcOfCircle(Part.Circle(V(16.8, 0, 0), V(0, 0, 1), 18.5), math.radians(-172), math.radians(-108)),
    Part.LineSegment(V(-1.5, -2.5, 0), V(14, -2.5, 0)),
    Part.ArcOfCircle(Part.Circle(V(14, -5.5, 0), V(0, 0, 1), 3), math.radians(0), math.radians(90)),
    Part.LineSegment(V(17, -5.5, 0), V(17, -7.5, 0)),
    Part.ArcOfCircle(Part.Circle(V(14, -7.5, 0), V(0, 0, 1), 3), math.radians(-90), math.radians(0)),
    Part.ArcOfCircle(Part.Circle(V(14, -13.5, 0), V(0, 0, 1), 3), math.radians(90), math.radians(156)),
    Part.ArcOfCircle(Part.Circle(V(14, -13.5, 0), V(0, 0, 1), 3), math.radians(156), math.radians(180)),
    Part.ArcOfCircle(Part.Circle(V(16.8, 0, 0), V(0, 0, 1), 18.5), math.radians(108), math.radians(172)),
    Part.LineSegment(V(11, 17.5, 0), V(11, 13.5, 0)),
    Part.ArcOfCircle(Part.Circle(V(14, 13.5, 0), V(0, 0, 1), 3), math.radians(180), math.radians(204)),
    Part.ArcOfCircle(Part.Circle(V(14, 13.5, 0), V(0, 0, 1), 3), math.radians(-156), math.radians(-90)),
    Part.ArcOfCircle(Part.Circle(V(14, 7.5, 0), V(0, 0, 1), 3), math.radians(0), math.radians(90)),
    Part.LineSegment(V(17, 7.5, 0), V(17, 5.5, 0)),
    Part.ArcOfCircle(Part.Circle(V(14, 5.5, 0), V(0, 0, 1), 3), math.radians(-90), math.radians(0)),
    Part.LineSegment(V(14, 2.5, 0), V(-1.5, 2.5, 0)),
], False)
sketch10.addConstraint([
    Sketcher.Constraint("Coincident", 0, 2, 1, 2),
    Sketcher.Constraint("Coincident", 1, 1, 2, 1),
    Sketcher.Constraint("Tangent", 2, 2, 3, 2),
    Sketcher.Constraint("Tangent", 3, 1, 4, 1),
    Sketcher.Constraint("Tangent", 4, 2, 5, 2),
    Sketcher.Constraint("Tangent", 5, 1, 6, 1),
    Sketcher.Constraint("Tangent", 6, 2, 7, 1),
    Sketcher.Constraint("Tangent", 7, 2, 0, 1),
    Sketcher.Constraint("Coincident", 8, 1, 9, 1),
    Sketcher.Constraint("Tangent", 9, 2, 10, 1),
    Sketcher.Constraint("Tangent", 10, 2, 11, 1),
    Sketcher.Constraint("Tangent", 11, 2, 12, 2),
    Sketcher.Constraint("Tangent", 12, 1, 13, 1),
    Sketcher.Constraint("Tangent", 13, 2, 14, 2),
    Sketcher.Constraint("Tangent", 14, 1, 15, 1),
    Sketcher.Constraint("Coincident", 15, 2, 8, 2),
    Sketcher.Constraint("Vertical", 0),
    Sketcher.Constraint("Horizontal", 2),
    Sketcher.Constraint("Vertical", 4),
    Sketcher.Constraint("Vertical", 9),
    Sketcher.Constraint("Vertical", 13),
    Sketcher.Constraint("Horizontal", 15),
    Sketcher.Constraint("Coincident", 8, 3, 1, 3),
    Sketcher.Constraint("Equal", 3, 5),
    Sketcher.Constraint("Equal", 5, 6),
    Sketcher.Constraint("Equal", 6, 7),
    Sketcher.Constraint("Equal", 1, 8),
    Sketcher.Constraint("Equal", 7, 10),
    Sketcher.Constraint("Equal", 10, 11),
    Sketcher.Constraint("Equal", 11, 12),
    Sketcher.Constraint("Equal", 12, 14),
    Sketcher.Constraint("Symmetric", 6, 3, 10, 3, -1),
    Sketcher.Constraint("Symmetric", 3, 3, 14, 3, -1),
    Sketcher.Constraint("PointOnObject", 1, 3, -1),
    Sketcher.Constraint("Vertical", 5, 3, 6, 3),
    Sketcher.Constraint("Vertical", 6, 2, 10, 2),
    Sketcher.Constraint("Radius", 3, 3.0),
    Sketcher.Constraint("DistanceY", 4, 2, 4, 1, 2.0),
    Sketcher.Constraint("DistanceX", -1, 1, 3, 3, 14.0),
    Sketcher.Constraint("DistanceY", 3, 3, 10, 3, 19.0),
    Sketcher.Constraint("Radius", 1, 18.468279),
    Sketcher.Constraint("DistanceX", 2, 1, 2, 2, 15.541584),
    Sketcher.Constraint("DistanceX", 15, 2, 10, 2, 12.795229),
])
pocket6 = body.newObject("PartDesign::Pocket", "Pocket005")
pocket6.Profile = sketch10
pocket6.Length = 9
doc.recompute()

fillet = body.newObject("PartDesign::Fillet", "Fillet")
fillet.Base = (pocket6, edges_at(pocket6, [
    (-57, -23.703, -18),
    (-57, 23.703, -18),
    (25, 0, -5),
    (25, 16.527, -11.5),
    (25, -16.527, -11.5),
    (25, -27.887, -18),
    (35.225, 0, -18),
]))
fillet.Radius = 3
doc.recompute()

fillet2 = body.newObject("PartDesign::Fillet", "Fillet001")
fillet2.Base = (fillet, edges_at(fillet, [(0, -90, -25)]))
fillet2.Radius = 2

sketch11 = body.newObject("Sketcher::SketchObject", "Sketch010")
sketch11.AttachmentSupport = (doc.getObject("XY_Plane"), [""])
sketch11.MapMode = "FlatFace"
sketch11.addGeometry([
    Part.LineSegment(V(-15, 108, 0), V(-33, 90, 0)),
    Part.LineSegment(V(-33, 90, 0), V(-70, 90, 0)),
    Part.ArcOfCircle(Part.Circle(V(-70, 80, 0), V(0, 0, 1), 10), math.radians(90), math.radians(180)),
    Part.LineSegment(V(-80, 80, 0), V(-80, -80, 0)),
    Part.ArcOfCircle(Part.Circle(V(-70, -80, 0), V(0, 0, 1), 10), math.radians(180), math.radians(270)),
    Part.LineSegment(V(-70, -90, 0), V(-33, -90, 0)),
    Part.LineSegment(V(-33, -90, 0), V(-15, -108, 0)),
    Part.LineSegment(V(-15, -108, 0), V(-15, -120, 0)),
    Part.ArcOfCircle(Part.Circle(V(0, -120, 0), V(0, 0, 1), 15), math.radians(180), math.radians(364)),
    Part.LineSegment(V(15, -119.1, 0), V(15, -107.1, 0)),
    Part.LineSegment(V(15, -107.1, 0), V(32, -90, 0)),
    Part.LineSegment(V(32, -90, 0), V(70, -90, 0)),
    Part.ArcOfCircle(Part.Circle(V(70, -80, 0), V(0, 0, 1), 10), math.radians(-90), math.radians(0)),
    Part.LineSegment(V(80, -80, 0), V(80, 80, 0)),
    Part.ArcOfCircle(Part.Circle(V(70, 80, 0), V(0, 0, 1), 10), math.radians(0), math.radians(90)),
    Part.LineSegment(V(70, 90, 0), V(32, 90, 0)),
    Part.LineSegment(V(32, 90, 0), V(15, 107.1, 0)),
    Part.LineSegment(V(15, 107.1, 0), V(15, 119.1, 0)),
    Part.ArcOfCircle(Part.Circle(V(0, 120, 0), V(0, 0, 1), 15), math.radians(-4), math.radians(180)),
    Part.LineSegment(V(-15, 120, 0), V(-15, 108, 0)),
    Part.Circle(V(-60, -67.5, 0), V(0, 0, 1), 4),
    Part.Circle(V(0, -120, 0), V(0, 0, 1), 6),
    Part.Circle(V(60, -67.5, 0), V(0, 0, 1), 4),
    Part.Circle(V(-60, 67.5, 0), V(0, 0, 1), 4),
    Part.LineSegment(V(-60, -40.3, 0), V(-60, 40.3, 0)),
    Part.ArcOfCircle(Part.Circle(V(-50, 40.3, 0), V(0, 0, 1), 10), math.radians(128), math.radians(180)),
    Part.ArcOfCircle(Part.Circle(V(0, -23.8, 0), V(0, 0, 1), 91.2), math.radians(52), math.radians(128)),
    Part.ArcOfCircle(Part.Circle(V(50, 40.3, 0), V(0, 0, 1), 10), math.radians(0), math.radians(52)),
    Part.LineSegment(V(60, 40.3, 0), V(60, -40.3, 0)),
    Part.ArcOfCircle(Part.Circle(V(50, -40.3, 0), V(0, 0, 1), 10), math.radians(-52), math.radians(0)),
    Part.ArcOfCircle(Part.Circle(V(0, 23.8, 0), V(0, 0, 1), 91.2), math.radians(-128), math.radians(-52)),
    Part.ArcOfCircle(Part.Circle(V(-50, -40.3, 0), V(0, 0, 1), 10), math.radians(180), math.radians(232)),
    Part.Circle(V(0, 120, 0), V(0, 0, 1), 6),
    Part.Circle(V(60, 67.5, 0), V(0, 0, 1), 4),
], False)
sketch11.addConstraint([
    Sketcher.Constraint("Coincident", 0, 2, 1, 1),
    Sketcher.Constraint("Tangent", 1, 2, 2, 1),
    Sketcher.Constraint("Tangent", 2, 2, 3, 1),
    Sketcher.Constraint("Tangent", 3, 2, 4, 1),
    Sketcher.Constraint("Tangent", 4, 2, 5, 1),
    Sketcher.Constraint("Coincident", 5, 2, 6, 1),
    Sketcher.Constraint("Coincident", 6, 2, 7, 1),
    Sketcher.Constraint("Tangent", 7, 2, 8, 1),
    Sketcher.Constraint("Coincident", 8, 2, 9, 1),
    Sketcher.Constraint("Coincident", 9, 2, 10, 1),
    Sketcher.Constraint("Coincident", 10, 2, 11, 1),
    Sketcher.Constraint("Tangent", 11, 2, 12, 1),
    Sketcher.Constraint("Tangent", 12, 2, 13, 1),
    Sketcher.Constraint("Tangent", 13, 2, 14, 1),
    Sketcher.Constraint("Tangent", 14, 2, 15, 1),
    Sketcher.Constraint("Coincident", 15, 2, 16, 1),
    Sketcher.Constraint("Coincident", 16, 2, 17, 1),
    Sketcher.Constraint("Coincident", 17, 2, 18, 1),
    Sketcher.Constraint("Tangent", 18, 2, 19, 1),
    Sketcher.Constraint("Coincident", 19, 2, 0, 1),
    Sketcher.Constraint("Tangent", 24, 2, 25, 2),
    Sketcher.Constraint("Tangent", 25, 1, 26, 2),
    Sketcher.Constraint("Tangent", 26, 1, 27, 2),
    Sketcher.Constraint("Tangent", 27, 1, 28, 1),
    Sketcher.Constraint("Tangent", 28, 2, 29, 2),
    Sketcher.Constraint("Tangent", 29, 1, 30, 2),
    Sketcher.Constraint("Tangent", 30, 1, 31, 2),
    Sketcher.Constraint("Tangent", 31, 1, 24, 1),
    Sketcher.Constraint("Horizontal", 1),
    Sketcher.Constraint("Vertical", 3),
    Sketcher.Constraint("Horizontal", 5),
    Sketcher.Constraint("Vertical", 7),
    Sketcher.Constraint("Vertical", 9),
    Sketcher.Constraint("Horizontal", 11),
    Sketcher.Constraint("Vertical", 13),
    Sketcher.Constraint("Horizontal", 15),
    Sketcher.Constraint("Vertical", 17),
    Sketcher.Constraint("Vertical", 19),
    Sketcher.Constraint("Vertical", 24),
    Sketcher.Constraint("Vertical", 28),
    Sketcher.Constraint("Coincident", 21, 3, 8, 3),
    Sketcher.Constraint("Coincident", 32, 3, 18, 3),
    Sketcher.Constraint("Equal", 2, 4),
    Sketcher.Constraint("Equal", 4, 12),
    Sketcher.Constraint("Equal", 12, 14),
    Sketcher.Constraint("Equal", 8, 18),
    Sketcher.Constraint("Equal", 20, 22),
    Sketcher.Constraint("Equal", 22, 23),
    Sketcher.Constraint("Equal", 14, 25),
    Sketcher.Constraint("Equal", 25, 27),
    Sketcher.Constraint("Equal", 27, 29),
    Sketcher.Constraint("Equal", 26, 30),
    Sketcher.Constraint("Equal", 29, 31),
    Sketcher.Constraint("Equal", 21, 32),
    Sketcher.Constraint("Equal", 23, 33),
    Sketcher.Constraint("Symmetric", 2, 3, 12, 3, -1, 1),
    Sketcher.Constraint("Symmetric", 8, 3, 18, 3, -1, 1),
    Sketcher.Constraint("Symmetric", 22, 3, 23, 3, -1, 1),
    Sketcher.Constraint("Symmetric", 25, 3, 29, 3, -1, 1),
    Sketcher.Constraint("Symmetric", 20, 3, 33, 3, -1, 1),
    Sketcher.Constraint("Symmetric", 20, 3, 22, 3, -2),
    Sketcher.Constraint("Symmetric", 26, 3, 30, 3, -1),
    Sketcher.Constraint("Symmetric", 0, 2, 5, 2, -1),
    Sketcher.Constraint("Symmetric", 10, 2, 15, 2, -1),
    Sketcher.Constraint("Symmetric", 9, 2, 16, 2, -1),
    Sketcher.Constraint("Symmetric", 6, 2, 19, 2, -1),
    Sketcher.Constraint("Perpendicular", 0, 6),
    Sketcher.Constraint("Perpendicular", 6, 10),
    Sketcher.Constraint("Vertical", 23, 3, 24, 2),
    Sketcher.Constraint("Equal", 7, 9),
    Sketcher.Constraint("Diameter", 20, 8.0),
    Sketcher.Constraint("Diameter", 21, 12.0),
    Sketcher.Constraint("Radius", 2, 10.0),
    Sketcher.Constraint("Radius", 8, 15.0),
    Sketcher.Constraint("DistanceX", 1, 2, 1, 1, 37.0),
    Sketcher.Constraint("DistanceY", 3, 2, 3, 1, 160.0),
    Sketcher.Constraint("DistanceY", 7, 2, 7, 1, 12.0),
    Sketcher.Constraint("Radius", 26, 91.25),
    Sketcher.Constraint("DistanceX", 2, 3, -1, 1, 70.0),
    Sketcher.Constraint("DistanceX", 20, 3, -1, 1, 60.0),
    Sketcher.Constraint("DistanceY", 20, 3, 23, 3, 135.0),
    Sketcher.Constraint("DistanceY", 26, 3, 30, 3, 47.5),
    Sketcher.Constraint("DistanceX", 11, 1, 11, 2, 37.964429),
])
pad5 = body.newObject("PartDesign::Pad", "Pad004")
pad5.Profile = sketch11
pad5.Type = "UpToLast"

doc.recompute()
